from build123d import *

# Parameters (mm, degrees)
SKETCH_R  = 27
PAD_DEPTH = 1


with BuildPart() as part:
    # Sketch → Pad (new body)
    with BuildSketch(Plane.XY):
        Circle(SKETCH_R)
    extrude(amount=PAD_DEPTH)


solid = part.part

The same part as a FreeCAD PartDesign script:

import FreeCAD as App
import Part
import Sketcher
from FreeCAD import Vector

doc = App.newDocument("Part")
body = doc.addObject("PartDesign::Body", "Body")

# Sketch on XY plane
sketch1 = body.newObject("Sketcher::SketchObject", "Sketch")
sketch1.AttachmentSupport = (doc.getObject("XY_Plane"), [""])
sketch1.MapMode = "FlatFace"
sketch1.addGeometry(Part.Circle(Vector(0, 0, 0), Vector(0, 0, 1), 27), False)
sketch1.addConstraint(Sketcher.Constraint("Coincident", 0, 3, -1, 1))
sketch1.addConstraint(Sketcher.Constraint("Diameter", 0, 54.0))
pad1 = body.newObject("PartDesign::Pad", "Pad")
pad1.Profile = sketch1
pad1.Length = 1

doc.recompute()
